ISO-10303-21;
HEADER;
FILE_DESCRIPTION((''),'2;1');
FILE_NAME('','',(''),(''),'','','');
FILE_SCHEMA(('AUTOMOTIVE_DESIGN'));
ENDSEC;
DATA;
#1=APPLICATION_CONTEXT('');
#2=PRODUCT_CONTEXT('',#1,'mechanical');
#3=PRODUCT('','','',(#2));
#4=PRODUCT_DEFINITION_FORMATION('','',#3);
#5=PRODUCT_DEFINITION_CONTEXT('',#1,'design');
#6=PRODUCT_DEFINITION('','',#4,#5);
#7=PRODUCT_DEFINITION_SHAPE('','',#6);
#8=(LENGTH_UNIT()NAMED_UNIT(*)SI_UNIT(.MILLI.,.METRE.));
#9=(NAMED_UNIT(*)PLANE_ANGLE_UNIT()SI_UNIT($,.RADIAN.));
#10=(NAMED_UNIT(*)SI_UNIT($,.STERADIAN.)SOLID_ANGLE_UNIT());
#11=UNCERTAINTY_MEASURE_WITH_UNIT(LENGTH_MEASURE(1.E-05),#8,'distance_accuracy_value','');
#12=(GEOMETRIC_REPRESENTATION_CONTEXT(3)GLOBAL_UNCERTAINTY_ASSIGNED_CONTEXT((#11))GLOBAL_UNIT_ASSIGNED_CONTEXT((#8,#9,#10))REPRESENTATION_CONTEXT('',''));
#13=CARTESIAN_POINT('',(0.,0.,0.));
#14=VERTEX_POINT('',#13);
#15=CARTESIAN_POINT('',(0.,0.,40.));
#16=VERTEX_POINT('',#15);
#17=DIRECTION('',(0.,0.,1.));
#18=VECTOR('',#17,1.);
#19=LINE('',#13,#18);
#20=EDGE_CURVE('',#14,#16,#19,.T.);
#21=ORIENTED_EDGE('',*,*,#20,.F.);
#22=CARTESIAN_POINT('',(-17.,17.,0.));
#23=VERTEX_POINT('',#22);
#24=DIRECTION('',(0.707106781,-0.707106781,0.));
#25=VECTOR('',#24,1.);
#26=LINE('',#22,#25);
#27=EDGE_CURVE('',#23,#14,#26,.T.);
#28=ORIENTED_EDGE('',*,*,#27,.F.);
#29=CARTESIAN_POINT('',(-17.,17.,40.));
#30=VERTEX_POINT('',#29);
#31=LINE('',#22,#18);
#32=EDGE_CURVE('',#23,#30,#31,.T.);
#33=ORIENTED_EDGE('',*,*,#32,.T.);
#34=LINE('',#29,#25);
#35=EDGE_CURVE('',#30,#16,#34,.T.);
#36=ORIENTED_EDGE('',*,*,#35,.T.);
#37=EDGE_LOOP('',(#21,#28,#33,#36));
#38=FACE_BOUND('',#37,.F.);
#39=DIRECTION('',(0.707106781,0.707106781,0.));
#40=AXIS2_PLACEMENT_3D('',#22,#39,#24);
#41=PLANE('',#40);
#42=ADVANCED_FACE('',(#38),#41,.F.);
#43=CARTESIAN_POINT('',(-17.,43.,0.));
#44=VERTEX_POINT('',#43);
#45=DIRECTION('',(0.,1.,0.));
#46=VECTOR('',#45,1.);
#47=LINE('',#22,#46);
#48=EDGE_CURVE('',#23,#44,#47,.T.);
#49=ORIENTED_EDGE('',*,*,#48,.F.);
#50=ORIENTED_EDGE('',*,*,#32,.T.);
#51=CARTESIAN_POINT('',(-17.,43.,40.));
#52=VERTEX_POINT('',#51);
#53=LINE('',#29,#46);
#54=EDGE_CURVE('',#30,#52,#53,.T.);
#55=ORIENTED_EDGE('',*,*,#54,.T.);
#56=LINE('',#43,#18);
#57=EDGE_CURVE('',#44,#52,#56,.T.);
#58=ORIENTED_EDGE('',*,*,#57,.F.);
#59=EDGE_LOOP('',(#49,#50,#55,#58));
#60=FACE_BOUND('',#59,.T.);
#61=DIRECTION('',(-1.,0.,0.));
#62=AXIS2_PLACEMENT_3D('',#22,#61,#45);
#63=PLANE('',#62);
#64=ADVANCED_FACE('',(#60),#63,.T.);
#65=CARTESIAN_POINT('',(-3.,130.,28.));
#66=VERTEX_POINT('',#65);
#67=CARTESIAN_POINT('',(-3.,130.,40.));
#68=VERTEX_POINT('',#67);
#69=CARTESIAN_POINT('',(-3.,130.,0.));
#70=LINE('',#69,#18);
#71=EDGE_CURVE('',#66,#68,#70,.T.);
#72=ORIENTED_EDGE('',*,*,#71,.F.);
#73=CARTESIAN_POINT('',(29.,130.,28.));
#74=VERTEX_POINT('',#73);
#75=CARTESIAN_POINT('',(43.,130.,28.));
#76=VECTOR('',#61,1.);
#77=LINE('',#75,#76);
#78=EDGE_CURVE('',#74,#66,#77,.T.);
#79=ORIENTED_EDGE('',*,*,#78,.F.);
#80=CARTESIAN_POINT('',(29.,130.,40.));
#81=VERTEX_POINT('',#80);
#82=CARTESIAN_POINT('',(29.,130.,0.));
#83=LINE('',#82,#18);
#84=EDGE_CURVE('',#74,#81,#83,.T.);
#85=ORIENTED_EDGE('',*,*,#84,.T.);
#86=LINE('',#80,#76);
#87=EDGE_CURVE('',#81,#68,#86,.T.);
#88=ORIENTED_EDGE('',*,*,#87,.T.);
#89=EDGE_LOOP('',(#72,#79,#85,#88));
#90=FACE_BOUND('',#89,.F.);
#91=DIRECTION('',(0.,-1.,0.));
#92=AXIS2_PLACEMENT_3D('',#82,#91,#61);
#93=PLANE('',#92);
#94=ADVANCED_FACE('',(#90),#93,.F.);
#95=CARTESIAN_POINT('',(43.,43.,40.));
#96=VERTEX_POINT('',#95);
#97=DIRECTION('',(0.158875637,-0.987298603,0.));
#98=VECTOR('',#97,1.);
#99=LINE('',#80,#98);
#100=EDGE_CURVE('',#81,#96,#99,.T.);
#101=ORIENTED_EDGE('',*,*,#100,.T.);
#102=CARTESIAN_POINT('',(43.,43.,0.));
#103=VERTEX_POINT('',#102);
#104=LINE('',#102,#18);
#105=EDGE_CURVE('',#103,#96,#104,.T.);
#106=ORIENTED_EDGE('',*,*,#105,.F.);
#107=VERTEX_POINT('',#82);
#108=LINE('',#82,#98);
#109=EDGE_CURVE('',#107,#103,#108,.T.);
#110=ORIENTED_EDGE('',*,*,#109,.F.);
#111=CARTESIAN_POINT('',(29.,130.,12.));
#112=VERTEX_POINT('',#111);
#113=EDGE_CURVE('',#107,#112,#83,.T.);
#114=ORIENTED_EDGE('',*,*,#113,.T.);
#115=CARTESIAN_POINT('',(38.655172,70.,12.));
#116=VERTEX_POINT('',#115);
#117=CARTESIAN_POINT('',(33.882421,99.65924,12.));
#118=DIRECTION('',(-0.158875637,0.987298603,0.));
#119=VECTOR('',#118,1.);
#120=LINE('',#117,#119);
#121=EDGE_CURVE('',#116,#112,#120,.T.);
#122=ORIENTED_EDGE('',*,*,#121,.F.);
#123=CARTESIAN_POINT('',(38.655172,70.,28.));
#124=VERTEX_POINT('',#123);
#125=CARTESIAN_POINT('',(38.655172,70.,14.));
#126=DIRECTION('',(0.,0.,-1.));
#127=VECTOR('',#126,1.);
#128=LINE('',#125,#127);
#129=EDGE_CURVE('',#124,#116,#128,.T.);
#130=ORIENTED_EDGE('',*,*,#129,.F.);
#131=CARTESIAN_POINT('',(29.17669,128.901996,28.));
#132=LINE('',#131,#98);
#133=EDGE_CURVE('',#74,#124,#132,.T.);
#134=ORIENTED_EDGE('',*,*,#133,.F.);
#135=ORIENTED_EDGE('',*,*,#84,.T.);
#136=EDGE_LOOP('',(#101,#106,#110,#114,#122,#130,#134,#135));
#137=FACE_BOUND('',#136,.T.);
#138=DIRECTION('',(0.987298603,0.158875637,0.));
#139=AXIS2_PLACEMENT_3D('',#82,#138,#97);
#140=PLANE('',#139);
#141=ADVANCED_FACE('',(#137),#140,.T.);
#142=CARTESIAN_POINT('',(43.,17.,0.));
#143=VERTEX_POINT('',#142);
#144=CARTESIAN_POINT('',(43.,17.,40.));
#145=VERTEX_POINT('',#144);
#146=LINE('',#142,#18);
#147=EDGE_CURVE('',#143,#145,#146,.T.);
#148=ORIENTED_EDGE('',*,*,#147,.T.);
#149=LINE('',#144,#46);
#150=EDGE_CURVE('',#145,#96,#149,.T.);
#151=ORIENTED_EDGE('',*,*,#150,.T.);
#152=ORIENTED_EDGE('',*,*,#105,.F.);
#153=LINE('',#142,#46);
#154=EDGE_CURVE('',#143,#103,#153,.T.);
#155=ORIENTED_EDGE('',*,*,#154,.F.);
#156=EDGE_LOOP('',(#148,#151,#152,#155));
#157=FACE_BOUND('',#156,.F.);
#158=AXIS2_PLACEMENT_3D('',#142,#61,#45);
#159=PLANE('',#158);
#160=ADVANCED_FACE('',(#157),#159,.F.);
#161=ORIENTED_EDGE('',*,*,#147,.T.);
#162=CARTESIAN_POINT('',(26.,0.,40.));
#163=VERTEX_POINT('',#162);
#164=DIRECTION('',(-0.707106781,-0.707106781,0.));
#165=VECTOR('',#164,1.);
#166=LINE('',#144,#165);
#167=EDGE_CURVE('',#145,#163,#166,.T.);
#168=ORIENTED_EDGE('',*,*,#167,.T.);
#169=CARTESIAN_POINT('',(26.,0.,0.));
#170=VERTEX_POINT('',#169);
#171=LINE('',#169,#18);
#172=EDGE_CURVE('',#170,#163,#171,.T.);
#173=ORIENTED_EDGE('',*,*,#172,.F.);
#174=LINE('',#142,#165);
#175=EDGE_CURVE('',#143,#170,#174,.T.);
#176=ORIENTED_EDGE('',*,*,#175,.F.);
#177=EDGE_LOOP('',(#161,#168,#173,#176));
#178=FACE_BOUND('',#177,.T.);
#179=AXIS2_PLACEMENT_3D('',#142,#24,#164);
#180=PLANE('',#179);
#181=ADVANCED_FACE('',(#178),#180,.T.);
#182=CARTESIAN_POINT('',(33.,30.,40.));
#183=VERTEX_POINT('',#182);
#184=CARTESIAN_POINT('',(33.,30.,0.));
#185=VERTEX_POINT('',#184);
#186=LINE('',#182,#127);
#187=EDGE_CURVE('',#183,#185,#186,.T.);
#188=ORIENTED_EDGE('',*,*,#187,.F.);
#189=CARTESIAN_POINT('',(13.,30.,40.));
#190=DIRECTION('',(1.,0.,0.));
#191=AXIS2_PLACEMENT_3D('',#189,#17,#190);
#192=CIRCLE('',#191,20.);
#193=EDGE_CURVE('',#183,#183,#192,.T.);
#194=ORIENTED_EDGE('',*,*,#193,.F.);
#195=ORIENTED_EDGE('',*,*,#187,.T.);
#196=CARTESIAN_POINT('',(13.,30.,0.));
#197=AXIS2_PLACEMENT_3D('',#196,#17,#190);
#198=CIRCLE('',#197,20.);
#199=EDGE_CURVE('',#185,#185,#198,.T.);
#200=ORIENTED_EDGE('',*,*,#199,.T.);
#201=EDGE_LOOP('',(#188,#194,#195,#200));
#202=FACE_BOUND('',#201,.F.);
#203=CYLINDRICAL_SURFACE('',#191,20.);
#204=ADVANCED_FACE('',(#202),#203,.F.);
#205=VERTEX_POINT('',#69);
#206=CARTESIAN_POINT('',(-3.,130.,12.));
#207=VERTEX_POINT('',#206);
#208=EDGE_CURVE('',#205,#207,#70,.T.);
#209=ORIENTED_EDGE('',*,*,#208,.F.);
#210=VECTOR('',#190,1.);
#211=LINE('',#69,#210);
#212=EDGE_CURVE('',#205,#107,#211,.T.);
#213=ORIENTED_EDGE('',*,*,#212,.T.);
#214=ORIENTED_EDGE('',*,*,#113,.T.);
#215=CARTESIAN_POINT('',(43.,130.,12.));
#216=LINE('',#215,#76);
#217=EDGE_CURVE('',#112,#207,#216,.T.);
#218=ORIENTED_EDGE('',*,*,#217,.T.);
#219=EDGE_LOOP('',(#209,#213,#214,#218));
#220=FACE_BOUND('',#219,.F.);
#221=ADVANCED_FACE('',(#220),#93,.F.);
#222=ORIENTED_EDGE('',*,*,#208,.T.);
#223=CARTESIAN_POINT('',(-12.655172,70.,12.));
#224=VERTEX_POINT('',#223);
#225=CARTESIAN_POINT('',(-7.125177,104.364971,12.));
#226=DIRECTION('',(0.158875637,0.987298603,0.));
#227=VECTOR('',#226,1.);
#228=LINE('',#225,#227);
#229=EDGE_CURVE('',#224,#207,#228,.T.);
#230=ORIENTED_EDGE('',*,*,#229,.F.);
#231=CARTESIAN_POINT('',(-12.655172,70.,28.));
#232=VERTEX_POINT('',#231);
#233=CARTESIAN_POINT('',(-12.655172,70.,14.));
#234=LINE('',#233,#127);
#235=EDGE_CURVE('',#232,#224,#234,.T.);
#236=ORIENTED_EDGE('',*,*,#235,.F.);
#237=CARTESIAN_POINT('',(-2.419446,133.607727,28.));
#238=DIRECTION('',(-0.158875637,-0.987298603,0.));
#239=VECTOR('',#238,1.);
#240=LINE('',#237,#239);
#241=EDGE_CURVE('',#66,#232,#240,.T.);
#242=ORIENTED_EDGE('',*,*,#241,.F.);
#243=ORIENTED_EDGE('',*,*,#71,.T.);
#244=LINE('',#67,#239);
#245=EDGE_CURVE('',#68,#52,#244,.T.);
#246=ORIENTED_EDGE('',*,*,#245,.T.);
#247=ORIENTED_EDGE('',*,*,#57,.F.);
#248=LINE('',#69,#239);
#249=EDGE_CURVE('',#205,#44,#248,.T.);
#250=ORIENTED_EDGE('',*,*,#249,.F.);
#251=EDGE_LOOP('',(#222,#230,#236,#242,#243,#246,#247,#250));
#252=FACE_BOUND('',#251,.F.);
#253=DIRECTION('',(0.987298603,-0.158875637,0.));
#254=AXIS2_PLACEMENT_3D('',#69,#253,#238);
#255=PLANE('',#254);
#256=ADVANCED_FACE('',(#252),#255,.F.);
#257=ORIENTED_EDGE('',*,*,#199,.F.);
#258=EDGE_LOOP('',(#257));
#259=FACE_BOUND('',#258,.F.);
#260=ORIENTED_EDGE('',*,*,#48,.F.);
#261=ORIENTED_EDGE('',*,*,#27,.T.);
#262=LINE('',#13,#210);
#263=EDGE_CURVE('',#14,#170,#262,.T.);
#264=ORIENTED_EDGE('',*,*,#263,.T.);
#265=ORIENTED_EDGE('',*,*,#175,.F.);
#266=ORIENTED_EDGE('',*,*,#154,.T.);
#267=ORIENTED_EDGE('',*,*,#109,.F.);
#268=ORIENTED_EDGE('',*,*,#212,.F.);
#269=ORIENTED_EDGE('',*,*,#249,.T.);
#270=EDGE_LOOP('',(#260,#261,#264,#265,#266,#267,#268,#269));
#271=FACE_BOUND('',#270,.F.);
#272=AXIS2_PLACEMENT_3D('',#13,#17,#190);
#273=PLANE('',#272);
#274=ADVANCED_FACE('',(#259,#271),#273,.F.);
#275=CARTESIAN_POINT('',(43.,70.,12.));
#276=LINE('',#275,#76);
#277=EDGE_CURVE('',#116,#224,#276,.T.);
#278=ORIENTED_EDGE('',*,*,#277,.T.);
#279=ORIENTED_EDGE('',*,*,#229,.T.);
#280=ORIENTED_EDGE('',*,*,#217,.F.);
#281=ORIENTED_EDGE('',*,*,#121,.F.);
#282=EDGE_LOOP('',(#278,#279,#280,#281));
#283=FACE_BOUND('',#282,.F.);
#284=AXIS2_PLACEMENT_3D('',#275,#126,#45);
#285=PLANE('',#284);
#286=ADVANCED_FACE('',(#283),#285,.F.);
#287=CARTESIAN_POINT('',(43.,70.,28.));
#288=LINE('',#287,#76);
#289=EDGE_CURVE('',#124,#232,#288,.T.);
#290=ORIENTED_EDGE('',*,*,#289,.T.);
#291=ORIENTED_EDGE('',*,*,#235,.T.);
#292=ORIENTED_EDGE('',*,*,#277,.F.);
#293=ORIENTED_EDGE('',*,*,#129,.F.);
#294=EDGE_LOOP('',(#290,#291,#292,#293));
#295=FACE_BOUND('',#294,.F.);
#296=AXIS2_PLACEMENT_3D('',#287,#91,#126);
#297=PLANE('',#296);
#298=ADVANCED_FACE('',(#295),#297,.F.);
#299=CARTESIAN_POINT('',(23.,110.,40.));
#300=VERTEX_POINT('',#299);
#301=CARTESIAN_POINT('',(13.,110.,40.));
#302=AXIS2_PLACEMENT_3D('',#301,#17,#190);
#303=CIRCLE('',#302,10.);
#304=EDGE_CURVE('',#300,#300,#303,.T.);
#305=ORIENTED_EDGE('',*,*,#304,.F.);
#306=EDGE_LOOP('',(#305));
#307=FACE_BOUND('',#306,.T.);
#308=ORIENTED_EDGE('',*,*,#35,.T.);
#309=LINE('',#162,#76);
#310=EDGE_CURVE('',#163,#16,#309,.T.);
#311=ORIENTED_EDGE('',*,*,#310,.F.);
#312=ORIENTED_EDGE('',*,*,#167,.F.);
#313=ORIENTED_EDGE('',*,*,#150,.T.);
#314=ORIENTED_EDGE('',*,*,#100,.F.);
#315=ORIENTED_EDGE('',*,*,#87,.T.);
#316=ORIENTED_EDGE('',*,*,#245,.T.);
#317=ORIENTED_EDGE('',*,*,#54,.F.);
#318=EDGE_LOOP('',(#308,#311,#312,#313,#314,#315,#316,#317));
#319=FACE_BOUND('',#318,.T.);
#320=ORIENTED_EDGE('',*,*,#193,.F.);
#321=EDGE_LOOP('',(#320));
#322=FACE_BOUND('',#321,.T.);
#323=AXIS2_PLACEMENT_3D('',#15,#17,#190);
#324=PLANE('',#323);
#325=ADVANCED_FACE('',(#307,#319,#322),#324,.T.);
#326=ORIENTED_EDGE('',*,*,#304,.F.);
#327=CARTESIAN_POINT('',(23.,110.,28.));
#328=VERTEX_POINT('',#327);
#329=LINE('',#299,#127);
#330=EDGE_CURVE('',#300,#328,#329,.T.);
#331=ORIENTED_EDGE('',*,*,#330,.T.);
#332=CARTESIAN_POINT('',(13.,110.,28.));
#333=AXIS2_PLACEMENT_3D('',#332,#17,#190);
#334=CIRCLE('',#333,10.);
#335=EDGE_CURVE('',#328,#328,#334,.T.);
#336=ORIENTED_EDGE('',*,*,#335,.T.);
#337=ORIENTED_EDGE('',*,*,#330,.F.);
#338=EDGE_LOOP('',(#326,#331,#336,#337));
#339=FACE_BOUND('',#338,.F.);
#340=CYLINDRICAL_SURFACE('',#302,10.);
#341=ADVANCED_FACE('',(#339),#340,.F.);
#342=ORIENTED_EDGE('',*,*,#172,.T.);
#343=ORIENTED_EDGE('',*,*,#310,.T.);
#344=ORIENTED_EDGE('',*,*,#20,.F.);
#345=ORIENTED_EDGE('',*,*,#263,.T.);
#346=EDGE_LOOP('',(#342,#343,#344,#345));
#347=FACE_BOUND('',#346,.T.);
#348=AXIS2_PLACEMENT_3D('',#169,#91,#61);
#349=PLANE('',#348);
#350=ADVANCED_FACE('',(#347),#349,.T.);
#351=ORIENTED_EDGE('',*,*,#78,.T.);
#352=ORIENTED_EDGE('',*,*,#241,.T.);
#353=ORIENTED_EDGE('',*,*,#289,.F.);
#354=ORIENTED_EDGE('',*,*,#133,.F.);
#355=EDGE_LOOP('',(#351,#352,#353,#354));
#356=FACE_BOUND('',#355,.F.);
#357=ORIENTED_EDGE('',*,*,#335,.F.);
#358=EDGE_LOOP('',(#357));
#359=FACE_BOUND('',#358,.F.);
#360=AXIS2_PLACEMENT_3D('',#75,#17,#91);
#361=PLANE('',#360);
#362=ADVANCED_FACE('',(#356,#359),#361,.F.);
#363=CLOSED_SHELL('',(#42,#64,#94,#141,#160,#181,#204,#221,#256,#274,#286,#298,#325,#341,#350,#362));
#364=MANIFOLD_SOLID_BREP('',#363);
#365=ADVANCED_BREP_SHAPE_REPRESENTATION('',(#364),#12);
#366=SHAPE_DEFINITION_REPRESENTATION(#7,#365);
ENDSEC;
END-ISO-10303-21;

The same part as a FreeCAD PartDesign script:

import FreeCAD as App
import Part
import Sketcher
from FreeCAD import Vector
Q = App.Units.Quantity

doc = App.newDocument("Part")
body = doc.addObject("PartDesign::Body", "Body")

sketch1 = body.newObject("Sketcher::SketchObject", "Sketch")
sketch1.AttachmentSupport = (doc.getObject("XY_Plane"), [""])
sketch1.MapMode = "FlatFace"
sketch1.addGeometry(Part.LineSegment(Vector(26, 0, 0), Vector(43, 17, 0)), False)
sketch1.addGeometry(Part.LineSegment(Vector(43, 17, 0), Vector(43, 43, 0)), False)
sketch1.addGeometry(Part.LineSegment(Vector(43, 43, 0), Vector(29, 130, 0)), False)
sketch1.addGeometry(Part.LineSegment(Vector(29, 130, 0), Vector(-3, 130, 0)), False)
sketch1.addGeometry(Part.LineSegment(Vector(-3, 130, 0), Vector(-17, 43, 0)), False)
sketch1.addGeometry(Part.LineSegment(Vector(-17, 43, 0), Vector(-17, 17, 0)), False)
sketch1.addGeometry(Part.LineSegment(Vector(-17, 17, 0), Vector(0, 0, 0)), False)
sketch1.addGeometry(Part.LineSegment(Vector(0, 0, 0), Vector(26, 0, 0)), False)
sketch1.addConstraint(Sketcher.Constraint("Coincident", 0, 2, 1, 1))
sketch1.addConstraint(Sketcher.Constraint("Coincident", 1, 2, 2, 1))
sketch1.addConstraint(Sketcher.Constraint("Coincident", 2, 2, 3, 1))
sketch1.addConstraint(Sketcher.Constraint("Coincident", 3, 2, 4, 1))
sketch1.addConstraint(Sketcher.Constraint("Coincident", 4, 2, 5, 1))
sketch1.addConstraint(Sketcher.Constraint("Coincident", 5, 2, 6, 1))
sketch1.addConstraint(Sketcher.Constraint("Coincident", 6, 2, 7, 1))
sketch1.addConstraint(Sketcher.Constraint("Coincident", 7, 2, 0, 1))
sketch1.addConstraint(Sketcher.Constraint("Vertical", 1))
sketch1.addConstraint(Sketcher.Constraint("Horizontal", 3))
sketch1.addConstraint(Sketcher.Constraint("Vertical", 5))
sketch1.addConstraint(Sketcher.Constraint("Horizontal", 7))
sketch1.addConstraint(Sketcher.Constraint("Coincident", 6, 2, -1, 1))
sketch1.addConstraint(Sketcher.Constraint("Perpendicular", 0, 6))
sketch1.addConstraint(Sketcher.Constraint("Horizontal", 1, 2, 4, 2))
sketch1.addConstraint(Sketcher.Constraint("Horizontal", 0, 2, 5, 2))
sketch1.addConstraint(Sketcher.Constraint("Equal", 7, 1))
sketch1.addConstraint(Sketcher.Constraint("Equal", 2, 4))
sketch1.addConstraint(Sketcher.Constraint("Equal", 0, 6))
sketch1.addConstraint(Sketcher.Constraint("DistanceX", 7, 1, 7, 2, Q("26 mm")))
sketch1.addConstraint(Sketcher.Constraint("DistanceX", 3, 2, 3, 1, Q("32 mm")))
sketch1.addConstraint(Sketcher.Constraint("DistanceX", -1, 1, 0, 2, Q("43 mm")))
sketch1.addConstraint(Sketcher.Constraint("DistanceY", -1, 1, 2, 2, Q("130 mm")))
pad1 = body.newObject("PartDesign::Pad", "Pad")
pad1.Profile = sketch1
pad1.Length = 40

sketch2 = body.newObject("Sketcher::SketchObject", "Sketch001")
sketch2.AttachmentSupport = (doc.getObject("YZ_Plane"), [""])
sketch2.MapMode = "FlatFace"
sketch2.AttachmentOffset = App.Placement(Vector(0, 0, 43), App.Rotation())
sketch2.addGeometry(Part.LineSegment(Vector(70, 12, 0), Vector(130, 12, 0)), False)
sketch2.addGeometry(Part.LineSegment(Vector(130, 12, 0), Vector(130, 28, 0)), False)
sketch2.addGeometry(Part.LineSegment(Vector(130, 28, 0), Vector(70, 28, 0)), False)
sketch2.addGeometry(Part.LineSegment(Vector(70, 28, 0), Vector(70, 12, 0)), False)
sketch2.addConstraint(Sketcher.Constraint("Coincident", 0, 2, 1, 1))
sketch2.addConstraint(Sketcher.Constraint("Coincident", 1, 2, 2, 1))
sketch2.addConstraint(Sketcher.Constraint("Coincident", 2, 2, 3, 1))
sketch2.addConstraint(Sketcher.Constraint("Coincident", 3, 2, 0, 1))
sketch2.addConstraint(Sketcher.Constraint("Horizontal", 0))
sketch2.addConstraint(Sketcher.Constraint("Vertical", 1))
sketch2.addConstraint(Sketcher.Constraint("Horizontal", 2))
sketch2.addConstraint(Sketcher.Constraint("Vertical", 3))
sketch2.addConstraint(Sketcher.Constraint("DistanceX", 0, 1, 0, 2, Q("60 mm")))
sketch2.addConstraint(Sketcher.Constraint("DistanceY", 1, 1, 1, 2, Q("16 mm")))
sketch2.addConstraint(Sketcher.Constraint("DistanceX", -1, 1, 0, 2, Q("130 mm")))
sketch2.addConstraint(Sketcher.Constraint("DistanceY", -1, 1, 0, 2, Q("12 mm")))
pocket1 = body.newObject("PartDesign::Pocket", "Pocket")
pocket1.Profile = sketch2
pocket1.Type = "ThroughAll"

sketch3 = body.newObject("Sketcher::SketchObject", "Sketch002")
sketch3.AttachmentSupport = (doc.getObject("XY_Plane"), [""])
sketch3.MapMode = "FlatFace"
sketch3.AttachmentOffset = App.Placement(Vector(0, 0, 40), App.Rotation())
sketch3.addGeometry(Part.Circle(Vector(13, 30, 0), Vector(0, 0, 1), 20), False)
sketch3.addConstraint(Sketcher.Constraint("Diameter", 0, Q("40 mm")))
sketch3.addConstraint(Sketcher.Constraint("DistanceX", -1, 1, 0, 3, Q("13 mm")))
sketch3.addConstraint(Sketcher.Constraint("DistanceY", -1, 1, 0, 3, Q("30 mm")))
pocket2 = body.newObject("PartDesign::Pocket", "Pocket001")
pocket2.Profile = sketch3
pocket2.Type = "ThroughAll"

sketch4 = body.newObject("Sketcher::SketchObject", "Sketch003")
sketch4.AttachmentSupport = (doc.getObject("XY_Plane"), [""])
sketch4.MapMode = "FlatFace"
sketch4.AttachmentOffset = App.Placement(Vector(0, 0, 40), App.Rotation())
sketch4.addGeometry(Part.Circle(Vector(13, 110, 0), Vector(0, 0, 1), 10), False)
sketch4.addConstraint(Sketcher.Constraint("Diameter", 0, Q("20 mm")))
sketch4.addConstraint(Sketcher.Constraint("DistanceX", -1, 1, 0, 3, Q("13 mm")))
sketch4.addConstraint(Sketcher.Constraint("DistanceY", -1, 1, 0, 3, Q("110 mm")))
pocket3 = body.newObject("PartDesign::Pocket", "Pocket002")
pocket3.Profile = sketch4
pocket3.Length = 20

doc.recompute()
